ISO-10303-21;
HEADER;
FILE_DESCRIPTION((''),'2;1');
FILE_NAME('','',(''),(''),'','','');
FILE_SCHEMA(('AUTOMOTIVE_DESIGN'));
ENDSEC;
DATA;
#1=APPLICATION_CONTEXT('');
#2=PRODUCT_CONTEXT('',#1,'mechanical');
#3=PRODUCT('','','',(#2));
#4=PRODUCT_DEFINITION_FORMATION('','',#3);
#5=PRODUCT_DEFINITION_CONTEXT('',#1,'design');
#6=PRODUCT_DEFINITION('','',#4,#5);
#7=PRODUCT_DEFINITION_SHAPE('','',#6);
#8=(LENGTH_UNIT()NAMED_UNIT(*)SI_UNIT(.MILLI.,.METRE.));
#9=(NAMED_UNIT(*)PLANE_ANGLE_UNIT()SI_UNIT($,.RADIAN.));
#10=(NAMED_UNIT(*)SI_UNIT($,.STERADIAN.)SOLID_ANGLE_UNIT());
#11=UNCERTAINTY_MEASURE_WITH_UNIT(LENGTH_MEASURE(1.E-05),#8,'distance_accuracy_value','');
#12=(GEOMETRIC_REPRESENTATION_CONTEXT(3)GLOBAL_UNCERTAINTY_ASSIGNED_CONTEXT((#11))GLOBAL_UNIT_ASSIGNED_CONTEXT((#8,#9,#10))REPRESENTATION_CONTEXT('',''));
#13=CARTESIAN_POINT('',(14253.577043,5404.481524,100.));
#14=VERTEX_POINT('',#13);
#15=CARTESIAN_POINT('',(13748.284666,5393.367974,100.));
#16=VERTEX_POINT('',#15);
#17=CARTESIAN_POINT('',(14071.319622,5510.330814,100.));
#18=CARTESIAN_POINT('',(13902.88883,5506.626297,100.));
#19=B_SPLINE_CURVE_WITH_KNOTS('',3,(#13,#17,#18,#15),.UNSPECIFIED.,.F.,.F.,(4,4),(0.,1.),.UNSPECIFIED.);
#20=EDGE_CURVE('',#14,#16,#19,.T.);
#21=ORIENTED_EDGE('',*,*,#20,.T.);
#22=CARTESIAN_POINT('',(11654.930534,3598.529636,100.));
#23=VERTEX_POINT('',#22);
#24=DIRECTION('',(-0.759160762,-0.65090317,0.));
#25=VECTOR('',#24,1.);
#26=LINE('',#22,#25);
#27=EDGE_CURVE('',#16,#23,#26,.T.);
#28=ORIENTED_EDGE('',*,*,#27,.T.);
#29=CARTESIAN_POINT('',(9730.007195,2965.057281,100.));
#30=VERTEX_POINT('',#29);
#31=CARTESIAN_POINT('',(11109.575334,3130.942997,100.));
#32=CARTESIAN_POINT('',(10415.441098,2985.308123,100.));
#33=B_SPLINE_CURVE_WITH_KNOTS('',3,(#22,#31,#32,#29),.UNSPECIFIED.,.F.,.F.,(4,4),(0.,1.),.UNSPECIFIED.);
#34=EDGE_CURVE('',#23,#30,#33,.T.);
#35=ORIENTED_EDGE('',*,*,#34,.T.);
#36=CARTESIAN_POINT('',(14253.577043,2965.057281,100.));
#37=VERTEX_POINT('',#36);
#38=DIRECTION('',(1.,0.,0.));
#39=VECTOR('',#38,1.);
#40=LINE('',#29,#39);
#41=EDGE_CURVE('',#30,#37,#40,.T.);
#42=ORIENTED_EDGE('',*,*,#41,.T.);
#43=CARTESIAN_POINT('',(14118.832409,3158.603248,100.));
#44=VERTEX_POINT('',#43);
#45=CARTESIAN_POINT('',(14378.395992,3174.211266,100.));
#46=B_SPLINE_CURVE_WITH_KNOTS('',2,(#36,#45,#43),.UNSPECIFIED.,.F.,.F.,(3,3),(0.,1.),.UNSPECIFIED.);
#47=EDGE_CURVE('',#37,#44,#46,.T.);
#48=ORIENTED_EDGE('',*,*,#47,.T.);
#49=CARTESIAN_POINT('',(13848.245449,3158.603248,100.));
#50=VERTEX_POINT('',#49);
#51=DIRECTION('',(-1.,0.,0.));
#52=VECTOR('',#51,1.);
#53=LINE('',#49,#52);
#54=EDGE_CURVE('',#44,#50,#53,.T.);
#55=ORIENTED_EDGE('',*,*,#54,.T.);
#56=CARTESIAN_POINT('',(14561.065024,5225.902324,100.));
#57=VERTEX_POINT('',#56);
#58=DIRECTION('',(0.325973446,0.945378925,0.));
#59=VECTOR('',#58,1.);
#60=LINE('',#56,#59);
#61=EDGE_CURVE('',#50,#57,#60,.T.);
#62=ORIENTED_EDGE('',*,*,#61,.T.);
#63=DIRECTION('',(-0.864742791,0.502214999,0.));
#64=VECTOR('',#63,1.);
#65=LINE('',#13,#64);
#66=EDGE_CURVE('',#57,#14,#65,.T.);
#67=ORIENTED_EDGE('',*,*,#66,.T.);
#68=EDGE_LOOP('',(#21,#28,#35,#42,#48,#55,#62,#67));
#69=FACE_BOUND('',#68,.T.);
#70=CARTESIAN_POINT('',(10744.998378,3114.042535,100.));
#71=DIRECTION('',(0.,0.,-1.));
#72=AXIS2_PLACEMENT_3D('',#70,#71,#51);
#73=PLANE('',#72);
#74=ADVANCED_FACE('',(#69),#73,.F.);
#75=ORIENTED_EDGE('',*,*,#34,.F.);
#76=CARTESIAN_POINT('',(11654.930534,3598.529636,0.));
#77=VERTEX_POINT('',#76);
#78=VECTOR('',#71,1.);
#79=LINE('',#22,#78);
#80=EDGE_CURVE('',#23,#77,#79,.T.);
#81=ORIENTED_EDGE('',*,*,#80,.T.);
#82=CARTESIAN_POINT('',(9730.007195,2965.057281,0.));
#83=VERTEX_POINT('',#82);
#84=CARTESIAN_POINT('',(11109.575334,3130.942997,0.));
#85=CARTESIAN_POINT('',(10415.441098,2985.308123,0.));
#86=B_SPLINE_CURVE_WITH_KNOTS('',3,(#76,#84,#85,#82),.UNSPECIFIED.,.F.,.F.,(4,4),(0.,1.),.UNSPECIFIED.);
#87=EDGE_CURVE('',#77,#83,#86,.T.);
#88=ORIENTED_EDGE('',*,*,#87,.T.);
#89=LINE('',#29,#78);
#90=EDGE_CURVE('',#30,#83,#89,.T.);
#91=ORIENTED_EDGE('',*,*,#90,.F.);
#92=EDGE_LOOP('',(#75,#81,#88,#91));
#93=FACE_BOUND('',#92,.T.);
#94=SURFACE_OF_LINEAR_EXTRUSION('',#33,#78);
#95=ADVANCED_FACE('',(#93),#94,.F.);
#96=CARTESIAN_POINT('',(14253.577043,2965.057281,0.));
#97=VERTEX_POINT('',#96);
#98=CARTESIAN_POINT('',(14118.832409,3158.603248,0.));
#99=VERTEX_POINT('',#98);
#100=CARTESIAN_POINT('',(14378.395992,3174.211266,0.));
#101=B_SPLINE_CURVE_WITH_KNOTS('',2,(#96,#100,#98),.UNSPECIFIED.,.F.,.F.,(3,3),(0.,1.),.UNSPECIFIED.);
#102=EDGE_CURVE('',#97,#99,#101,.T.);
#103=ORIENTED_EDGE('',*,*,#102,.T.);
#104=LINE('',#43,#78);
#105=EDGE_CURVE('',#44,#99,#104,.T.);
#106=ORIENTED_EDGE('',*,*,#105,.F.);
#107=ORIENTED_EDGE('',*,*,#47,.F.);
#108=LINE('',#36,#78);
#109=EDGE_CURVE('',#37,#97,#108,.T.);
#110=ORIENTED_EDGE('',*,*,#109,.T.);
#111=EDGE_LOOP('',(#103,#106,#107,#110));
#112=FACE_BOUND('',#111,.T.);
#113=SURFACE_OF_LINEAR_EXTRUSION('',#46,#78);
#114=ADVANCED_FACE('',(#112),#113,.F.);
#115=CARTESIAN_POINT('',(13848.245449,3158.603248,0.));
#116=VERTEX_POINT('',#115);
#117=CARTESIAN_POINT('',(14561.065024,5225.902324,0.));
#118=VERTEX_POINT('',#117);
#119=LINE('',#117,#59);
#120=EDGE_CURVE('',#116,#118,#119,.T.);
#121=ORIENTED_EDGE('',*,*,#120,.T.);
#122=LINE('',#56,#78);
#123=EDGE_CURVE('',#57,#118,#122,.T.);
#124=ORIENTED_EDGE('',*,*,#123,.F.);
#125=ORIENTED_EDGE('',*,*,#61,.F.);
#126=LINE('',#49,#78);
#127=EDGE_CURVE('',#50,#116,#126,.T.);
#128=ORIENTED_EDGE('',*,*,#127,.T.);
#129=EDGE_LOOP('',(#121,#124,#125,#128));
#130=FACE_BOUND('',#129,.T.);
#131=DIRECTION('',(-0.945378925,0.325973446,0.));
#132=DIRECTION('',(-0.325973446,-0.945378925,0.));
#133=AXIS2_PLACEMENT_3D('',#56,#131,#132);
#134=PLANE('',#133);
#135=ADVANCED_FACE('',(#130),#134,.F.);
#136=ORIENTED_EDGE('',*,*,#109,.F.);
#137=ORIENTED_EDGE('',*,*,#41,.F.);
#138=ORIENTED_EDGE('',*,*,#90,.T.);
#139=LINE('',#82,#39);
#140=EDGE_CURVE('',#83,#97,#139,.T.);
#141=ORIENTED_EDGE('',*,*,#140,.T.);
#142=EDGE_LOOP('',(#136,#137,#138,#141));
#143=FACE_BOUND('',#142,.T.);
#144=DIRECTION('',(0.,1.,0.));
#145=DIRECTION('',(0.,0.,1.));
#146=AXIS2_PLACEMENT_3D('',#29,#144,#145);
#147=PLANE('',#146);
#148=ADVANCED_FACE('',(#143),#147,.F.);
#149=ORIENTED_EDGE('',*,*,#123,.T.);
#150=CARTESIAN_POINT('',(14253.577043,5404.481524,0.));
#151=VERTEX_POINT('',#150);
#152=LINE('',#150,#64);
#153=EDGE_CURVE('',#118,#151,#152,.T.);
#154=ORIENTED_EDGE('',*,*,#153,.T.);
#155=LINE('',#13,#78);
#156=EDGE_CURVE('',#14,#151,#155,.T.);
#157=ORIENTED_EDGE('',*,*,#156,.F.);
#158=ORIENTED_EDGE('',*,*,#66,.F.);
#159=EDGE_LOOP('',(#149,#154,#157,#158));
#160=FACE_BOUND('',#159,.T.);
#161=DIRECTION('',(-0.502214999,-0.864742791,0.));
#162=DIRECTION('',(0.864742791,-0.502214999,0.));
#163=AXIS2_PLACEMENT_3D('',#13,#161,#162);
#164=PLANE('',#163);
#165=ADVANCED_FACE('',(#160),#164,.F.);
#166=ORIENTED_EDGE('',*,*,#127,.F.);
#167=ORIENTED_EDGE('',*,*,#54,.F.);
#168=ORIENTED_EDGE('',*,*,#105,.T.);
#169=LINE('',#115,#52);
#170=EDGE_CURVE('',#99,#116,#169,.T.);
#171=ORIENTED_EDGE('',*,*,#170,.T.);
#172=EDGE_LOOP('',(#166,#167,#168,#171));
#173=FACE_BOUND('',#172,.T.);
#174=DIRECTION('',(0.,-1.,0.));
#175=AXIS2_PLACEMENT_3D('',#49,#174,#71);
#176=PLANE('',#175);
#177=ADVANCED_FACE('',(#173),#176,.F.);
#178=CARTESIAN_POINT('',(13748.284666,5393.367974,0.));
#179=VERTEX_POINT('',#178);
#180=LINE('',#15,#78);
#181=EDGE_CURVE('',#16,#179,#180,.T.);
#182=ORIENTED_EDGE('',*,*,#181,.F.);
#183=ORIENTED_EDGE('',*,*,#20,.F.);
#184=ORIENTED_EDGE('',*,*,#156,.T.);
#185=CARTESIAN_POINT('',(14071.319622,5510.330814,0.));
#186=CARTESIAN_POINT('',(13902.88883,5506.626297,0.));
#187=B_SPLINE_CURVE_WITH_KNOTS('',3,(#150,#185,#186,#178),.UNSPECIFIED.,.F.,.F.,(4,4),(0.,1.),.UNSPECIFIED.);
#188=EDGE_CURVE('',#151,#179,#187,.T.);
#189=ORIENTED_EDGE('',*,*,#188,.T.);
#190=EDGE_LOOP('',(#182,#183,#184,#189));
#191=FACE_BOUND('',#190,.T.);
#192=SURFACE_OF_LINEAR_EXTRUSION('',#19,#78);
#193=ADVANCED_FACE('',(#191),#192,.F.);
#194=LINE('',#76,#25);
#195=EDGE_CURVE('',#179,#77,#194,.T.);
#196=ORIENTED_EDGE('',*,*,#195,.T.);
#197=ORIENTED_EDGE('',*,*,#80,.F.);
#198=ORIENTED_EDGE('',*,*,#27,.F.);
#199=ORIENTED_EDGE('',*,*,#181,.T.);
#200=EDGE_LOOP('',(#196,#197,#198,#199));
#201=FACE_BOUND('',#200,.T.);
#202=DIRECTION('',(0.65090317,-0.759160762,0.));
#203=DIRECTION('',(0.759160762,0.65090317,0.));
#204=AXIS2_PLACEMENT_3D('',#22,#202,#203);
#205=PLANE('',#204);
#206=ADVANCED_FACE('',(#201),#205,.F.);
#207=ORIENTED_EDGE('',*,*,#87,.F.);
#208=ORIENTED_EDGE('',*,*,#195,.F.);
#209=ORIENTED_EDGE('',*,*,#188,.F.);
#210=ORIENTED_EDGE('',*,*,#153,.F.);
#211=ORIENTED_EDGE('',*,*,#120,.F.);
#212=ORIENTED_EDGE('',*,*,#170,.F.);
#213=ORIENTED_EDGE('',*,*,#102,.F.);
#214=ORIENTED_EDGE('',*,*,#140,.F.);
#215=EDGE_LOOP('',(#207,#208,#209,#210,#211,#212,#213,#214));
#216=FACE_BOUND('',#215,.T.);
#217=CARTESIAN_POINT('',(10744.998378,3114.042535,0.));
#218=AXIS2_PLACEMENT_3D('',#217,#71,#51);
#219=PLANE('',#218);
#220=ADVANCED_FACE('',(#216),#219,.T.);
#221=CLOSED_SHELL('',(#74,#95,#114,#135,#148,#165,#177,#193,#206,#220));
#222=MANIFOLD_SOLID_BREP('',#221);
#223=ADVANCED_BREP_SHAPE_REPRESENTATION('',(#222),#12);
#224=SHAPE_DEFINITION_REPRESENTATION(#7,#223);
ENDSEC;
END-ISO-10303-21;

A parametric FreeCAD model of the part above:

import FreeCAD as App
import Part
import Sketcher

V = App.Vector
Q = App.Units.Quantity

doc = App.newDocument("Part")
body = doc.addObject("PartDesign::Body", "Body")

sketch1 = doc.addObject("Sketcher::SketchObject", "Sketch")
body.addObject(sketch1)
sketch1.AttachmentSupport = (doc.XY_Plane, [""])
sketch1.MapMode = "FlatFace"
sketch1.addGeometry(Part.LineSegment(V(13748.284666, 5393.367974, 0), V(11654.930534, 3598.529636, 0)), False)
sketch1.addGeometry(Part.BSplineCurve([V(9730.007195, 2965.057281, 0), V(10415.441098, 2985.308123, 0), V(11109.575334, 3130.942997, 0), V(11654.930534, 3598.529636, 0)], [4, 4], [0, 1], False, 3, [1, 1, 1, 1], False), False)
sketch1.addGeometry(Part.LineSegment(V(9730.007195, 2965.057281, 0), V(14253.577043, 2965.057281, 0)), False)
sketch1.addGeometry(Part.BSplineCurve([V(14118.832409, 3158.603248, 0), V(14378.395992, 3174.211266, 0), V(14253.577043, 2965.057281, 0)], [3, 3], [0, 1], False, 2, [1, 1, 1], False), False)
sketch1.addGeometry(Part.LineSegment(V(14118.832409, 3158.603248, 0), V(13848.245449, 3158.603248, 0)), False)
sketch1.addGeometry(Part.LineSegment(V(13848.245449, 3158.603248, 0), V(14561.065024, 5225.902324, 0)), False)
sketch1.addGeometry(Part.LineSegment(V(14561.065024, 5225.902324, 0), V(14253.577043, 5404.481524, 0)), False)
sketch1.addGeometry(Part.BSplineCurve([V(13748.284666, 5393.367974, 0), V(13902.88883, 5506.626297, 0), V(14071.319622, 5510.330814, 0), V(14253.577043, 5404.481524, 0)], [4, 4], [0, 1], False, 3, [1, 1, 1, 1], False), False)
sketch1.addConstraint(Sketcher.Constraint("Block", 1))
sketch1.addConstraint(Sketcher.Constraint("Block", 3))
sketch1.addConstraint(Sketcher.Constraint("Block", 7))
sketch1.addConstraint(Sketcher.Constraint("Coincident", 0, 2, 1, 2))
sketch1.addConstraint(Sketcher.Constraint("Coincident", 1, 1, 2, 1))
sketch1.addConstraint(Sketcher.Constraint("Coincident", 2, 2, 3, 2))
sketch1.addConstraint(Sketcher.Constraint("Coincident", 3, 1, 4, 1))
sketch1.addConstraint(Sketcher.Constraint("Coincident", 4, 2, 5, 1))
sketch1.addConstraint(Sketcher.Constraint("Coincident", 5, 2, 6, 1))
sketch1.addConstraint(Sketcher.Constraint("Coincident", 6, 2, 7, 2))
sketch1.addConstraint(Sketcher.Constraint("Coincident", 7, 1, 0, 1))
sketch1.addConstraint(Sketcher.Constraint("Horizontal", 4))
sketch1.addConstraint(Sketcher.Constraint("DistanceX", 4, 2, 4, 1, Q("270.58696 mm")))
sketch1.addConstraint(Sketcher.Constraint("DistanceY", 5, 2, 6, 2, Q("178.579201 mm")))
sketch1.addConstraint(Sketcher.Constraint("Distance", 6, Q("355.583168 mm")))
pad1 = doc.addObject("PartDesign::Pad", "Pad")
body.addObject(pad1)
pad1.Profile = sketch1
pad1.Length = 100

doc.recompute()
